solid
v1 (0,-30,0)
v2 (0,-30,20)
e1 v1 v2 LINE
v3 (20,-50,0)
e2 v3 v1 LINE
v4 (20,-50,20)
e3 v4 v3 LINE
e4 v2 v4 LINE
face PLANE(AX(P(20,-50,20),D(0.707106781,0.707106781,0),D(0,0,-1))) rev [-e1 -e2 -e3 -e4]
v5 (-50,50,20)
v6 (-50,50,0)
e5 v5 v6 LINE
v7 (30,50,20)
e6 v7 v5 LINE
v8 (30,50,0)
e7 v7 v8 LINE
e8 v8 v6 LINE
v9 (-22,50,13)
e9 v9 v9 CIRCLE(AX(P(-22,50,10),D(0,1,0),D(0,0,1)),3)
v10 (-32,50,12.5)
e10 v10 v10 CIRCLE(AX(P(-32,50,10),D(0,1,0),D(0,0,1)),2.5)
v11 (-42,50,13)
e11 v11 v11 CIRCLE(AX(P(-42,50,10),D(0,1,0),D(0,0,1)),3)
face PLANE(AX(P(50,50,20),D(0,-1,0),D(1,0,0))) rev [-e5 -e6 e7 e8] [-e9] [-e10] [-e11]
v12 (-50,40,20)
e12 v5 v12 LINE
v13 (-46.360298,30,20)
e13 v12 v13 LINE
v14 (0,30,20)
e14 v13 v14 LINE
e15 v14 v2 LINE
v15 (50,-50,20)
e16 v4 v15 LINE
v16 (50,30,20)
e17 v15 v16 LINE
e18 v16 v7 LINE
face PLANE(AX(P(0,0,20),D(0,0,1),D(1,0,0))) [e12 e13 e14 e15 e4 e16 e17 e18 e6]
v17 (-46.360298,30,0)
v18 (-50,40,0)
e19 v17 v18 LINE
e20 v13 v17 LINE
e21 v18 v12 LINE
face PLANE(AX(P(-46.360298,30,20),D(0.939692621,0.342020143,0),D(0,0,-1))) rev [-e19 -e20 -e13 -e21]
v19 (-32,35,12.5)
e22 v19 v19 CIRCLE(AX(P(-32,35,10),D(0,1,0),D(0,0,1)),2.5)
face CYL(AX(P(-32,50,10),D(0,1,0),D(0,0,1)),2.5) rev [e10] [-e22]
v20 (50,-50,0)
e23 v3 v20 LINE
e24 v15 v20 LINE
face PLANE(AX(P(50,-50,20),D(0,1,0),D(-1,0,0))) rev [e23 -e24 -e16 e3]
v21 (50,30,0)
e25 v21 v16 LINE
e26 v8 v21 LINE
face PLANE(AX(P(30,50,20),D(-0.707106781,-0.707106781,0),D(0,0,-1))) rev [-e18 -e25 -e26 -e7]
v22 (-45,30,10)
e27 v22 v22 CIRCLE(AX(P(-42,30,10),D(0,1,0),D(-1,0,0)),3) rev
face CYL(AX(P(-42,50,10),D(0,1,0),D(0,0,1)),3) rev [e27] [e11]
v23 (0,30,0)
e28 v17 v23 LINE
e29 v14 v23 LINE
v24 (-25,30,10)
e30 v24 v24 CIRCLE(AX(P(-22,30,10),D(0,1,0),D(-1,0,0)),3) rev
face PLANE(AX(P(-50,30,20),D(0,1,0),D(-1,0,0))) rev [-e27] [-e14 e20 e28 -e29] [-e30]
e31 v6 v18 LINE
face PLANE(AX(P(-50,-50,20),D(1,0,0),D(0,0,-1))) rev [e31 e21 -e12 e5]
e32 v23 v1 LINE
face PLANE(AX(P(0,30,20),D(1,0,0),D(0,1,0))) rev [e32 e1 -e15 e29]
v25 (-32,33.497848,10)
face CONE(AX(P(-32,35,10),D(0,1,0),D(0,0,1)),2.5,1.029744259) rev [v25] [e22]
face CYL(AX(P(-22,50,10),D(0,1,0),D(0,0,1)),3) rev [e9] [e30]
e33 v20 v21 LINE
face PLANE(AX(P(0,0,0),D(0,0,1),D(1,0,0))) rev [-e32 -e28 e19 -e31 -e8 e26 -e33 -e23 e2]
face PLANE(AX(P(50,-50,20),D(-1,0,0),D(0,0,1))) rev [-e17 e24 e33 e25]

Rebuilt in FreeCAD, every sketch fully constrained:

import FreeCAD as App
import Part
import Sketcher

V = App.Vector


def edges_at(feature, points):
    """Names of the edges that pass closest to the given points."""
    edges = feature.Shape.Edges
    near = lambda p: min(range(len(edges)), key=lambda i: edges[i].distToShape(Part.Vertex(*p))[0])
    return sorted({f"Edge{near(p) + 1}" for p in points})

doc = App.newDocument("Part")
params = doc.addObject("Spreadsheet::Sheet", "Params")
for row, (alias, value) in enumerate([
    ("sketch1_width", "100 mm"),
    ("pad1_length", "20 mm"),
    ("sketch2_diameter", "6 mm"),
    ("hole_diameter", "6 mm"),
    ("hole_depth", "20 mm"),
    ("sketch3_diameter", "5 mm"),
    ("hole2_diameter", "5 mm"),
    ("hole2_depth", "15 mm"),
    ("sketch4_width", "50 mm"),
    ("sketch4_height", "80 mm"),
    ("chamfer_size", "10 mm"),
    ("chamfer_size2", "3.639702 mm"),
    ("chamfer2_size", "20 mm"),
    ("chamfer3_size", "20 mm"),
], start=1):
    params.set(f"A{row}", alias)
    params.set(f"B{row}", "=" + value)
    params.setAlias(f"B{row}", alias)

body = doc.addObject("PartDesign::Body", "Body")

sketch1 = body.newObject("Sketcher::SketchObject", "Sketch")
sketch1.AttachmentSupport = (doc.getObject("XY_Plane"), [""])
sketch1.MapMode = "FlatFace"
sketch1.addGeometry(Part.LineSegment(V(-50, 50, 0), V(-50, -50, 0)), False)
sketch1.addGeometry(Part.LineSegment(V(-50, -50, 0), V(50, -50, 0)), False)
sketch1.addGeometry(Part.LineSegment(V(50, -50, 0), V(50, 50, 0)), False)
sketch1.addGeometry(Part.LineSegment(V(50, 50, 0), V(-50, 50, 0)), False)
sketch1.addConstraint(Sketcher.Constraint("Coincident", 0, 2, 1, 1))
sketch1.addConstraint(Sketcher.Constraint("Coincident", 1, 2, 2, 1))
sketch1.addConstraint(Sketcher.Constraint("Coincident", 2, 2, 3, 1))
sketch1.addConstraint(Sketcher.Constraint("Coincident", 3, 2, 0, 1))
sketch1.addConstraint(Sketcher.Constraint("Vertical", 0))
sketch1.addConstraint(Sketcher.Constraint("Horizontal", 1))
sketch1.addConstraint(Sketcher.Constraint("Vertical", 2))
sketch1.addConstraint(Sketcher.Constraint("Horizontal", 3))
sketch1.addConstraint(Sketcher.Constraint("Symmetric", 0, 2, 2, 2, -1, 1))
sketch1.addConstraint(Sketcher.Constraint("Equal", 3, 0))
sketch1.addConstraint(Sketcher.Constraint("DistanceX", 1, 1, 1, 2, 100.0))
sketch1.setExpression("Constraints[10]", "Params.sketch1_width")
pad1 = body.newObject("PartDesign::Pad", "Pad")
pad1.Profile = sketch1
pad1.setExpression("Length", "Params.pad1_length")

sketch2 = body.newObject("Sketcher::SketchObject", "Sketch001")
sketch2.AttachmentSupport = (doc.getObject("XZ_Plane"), [""])
sketch2.MapMode = "FlatFace"
sketch2.AttachmentOffset = App.Placement(V(0, 0, -50), App.Rotation())
sketch2.addGeometry(Part.Circle(V(-22, 10, 0), V(0, 0, 1), 3), False)
sketch2.addGeometry(Part.Circle(V(-42, 10, 0), V(0, 0, 1), 3), False)
sketch2.addConstraint(Sketcher.Constraint("Equal", 0, 1))
sketch2.addConstraint(Sketcher.Constraint("Horizontal", 0, 3, 1, 3))
sketch2.addConstraint(Sketcher.Constraint("Diameter", 0, 6.0))
sketch2.addConstraint(Sketcher.Constraint("DistanceX", 0, 3, -1, 1, 22.0))
sketch2.addConstraint(Sketcher.Constraint("DistanceY", -1, 1, 0, 3, 10.0))
sketch2.addConstraint(Sketcher.Constraint("DistanceX", 1, 3, -1, 1, 42.0))
sketch2.setExpression("Constraints[2]", "Params.sketch2_diameter")
doc.recompute()
hole = body.newObject("PartDesign::Hole", "Hole")
hole.Profile = sketch2
hole.ThreadType = "None"
hole.setExpression("Diameter", "Params.hole_diameter")
hole.DepthType = "Dimension"
hole.setExpression("Depth", "Params.hole_depth")
hole.DrillPoint = "Angled"
hole.DrillPointAngle = 118
hole.Reversed = True

sketch3 = body.newObject("Sketcher::SketchObject", "Sketch002")
sketch3.AttachmentSupport = (doc.getObject("XZ_Plane"), [""])
sketch3.MapMode = "FlatFace"
sketch3.AttachmentOffset = App.Placement(V(0, 0, -50), App.Rotation())
sketch3.addGeometry(Part.Circle(V(-32, 10, 0), V(0, 0, 1), 2.5), False)
sketch3.addConstraint(Sketcher.Constraint("Diameter", 0, 5.0))
sketch3.addConstraint(Sketcher.Constraint("DistanceX", 0, 3, -1, 1, 32.0))
sketch3.addConstraint(Sketcher.Constraint("DistanceY", -1, 1, 0, 3, 10.0))
sketch3.setExpression("Constraints[0]", "Params.sketch3_diameter")
doc.recompute()
hole2 = body.newObject("PartDesign::Hole", "Hole001")
hole2.Profile = sketch3
hole2.ThreadType = "None"
hole2.setExpression("Diameter", "Params.hole2_diameter")
hole2.DepthType = "Dimension"
hole2.setExpression("Depth", "Params.hole2_depth")
hole2.DrillPoint = "Angled"
hole2.DrillPointAngle = 118
hole2.Reversed = True

sketch4 = body.newObject("Sketcher::SketchObject", "Sketch003")
sketch4.AttachmentSupport = (doc.getObject("XY_Plane"), [""])
sketch4.MapMode = "FlatFace"
sketch4.addGeometry(Part.LineSegment(V(0, 30, 0), V(0, -50, 0)), False)
sketch4.addGeometry(Part.LineSegment(V(0, -50, 0), V(-50, -50, 0)), False)
sketch4.addGeometry(Part.LineSegment(V(-50, -50, 0), V(-50, 30, 0)), False)
sketch4.addGeometry(Part.LineSegment(V(-50, 30, 0), V(0, 30, 0)), False)
sketch4.addConstraint(Sketcher.Constraint("Coincident", 0, 2, 1, 1))
sketch4.addConstraint(Sketcher.Constraint("Coincident", 1, 2, 2, 1))
sketch4.addConstraint(Sketcher.Constraint("Coincident", 2, 2, 3, 1))
sketch4.addConstraint(Sketcher.Constraint("Coincident", 3, 2, 0, 1))
sketch4.addConstraint(Sketcher.Constraint("Vertical", 0))
sketch4.addConstraint(Sketcher.Constraint("Horizontal", 1))
sketch4.addConstraint(Sketcher.Constraint("Vertical", 2))
sketch4.addConstraint(Sketcher.Constraint("Horizontal", 3))
sketch4.addConstraint(Sketcher.Constraint("PointOnObject", 0, 2, -2))
sketch4.addConstraint(Sketcher.Constraint("DistanceX", 1, 2, 1, 1, 50.0))
sketch4.addConstraint(Sketcher.Constraint("DistanceY", 0, 2, 0, 1, 80.0))
sketch4.addConstraint(Sketcher.Constraint("DistanceY", 0, 2, -1, 1, 50.0))
sketch4.setExpression("Constraints[9]", "Params.sketch4_width")
sketch4.setExpression("Constraints[10]", "Params.sketch4_height")
pocket1 = body.newObject("PartDesign::Pocket", "Pocket")
pocket1.Profile = sketch4
pocket1.Type = "ThroughAll"
pocket1.Reversed = True
doc.recompute()

chamfer = body.newObject("PartDesign::Chamfer", "Chamfer")
chamfer.Base = (pocket1, edges_at(pocket1, [(-50, 30, 10)]))
chamfer.ChamferType = "Two distances"
chamfer.setExpression("Size", "Params.chamfer_size")
chamfer.setExpression("Size2", "Params.chamfer_size2")
doc.recompute()

chamfer2 = body.newObject("PartDesign::Chamfer", "Chamfer001")
chamfer2.Base = (chamfer, edges_at(chamfer, [(0, -50, 10)]))
chamfer2.setExpression("Size", "Params.chamfer2_size")
doc.recompute()

chamfer3 = body.newObject("PartDesign::Chamfer", "Chamfer002")
chamfer3.Base = (chamfer2, edges_at(chamfer2, [(50, 50, 10)]))
chamfer3.setExpression("Size", "Params.chamfer3_size")

doc.recompute()
